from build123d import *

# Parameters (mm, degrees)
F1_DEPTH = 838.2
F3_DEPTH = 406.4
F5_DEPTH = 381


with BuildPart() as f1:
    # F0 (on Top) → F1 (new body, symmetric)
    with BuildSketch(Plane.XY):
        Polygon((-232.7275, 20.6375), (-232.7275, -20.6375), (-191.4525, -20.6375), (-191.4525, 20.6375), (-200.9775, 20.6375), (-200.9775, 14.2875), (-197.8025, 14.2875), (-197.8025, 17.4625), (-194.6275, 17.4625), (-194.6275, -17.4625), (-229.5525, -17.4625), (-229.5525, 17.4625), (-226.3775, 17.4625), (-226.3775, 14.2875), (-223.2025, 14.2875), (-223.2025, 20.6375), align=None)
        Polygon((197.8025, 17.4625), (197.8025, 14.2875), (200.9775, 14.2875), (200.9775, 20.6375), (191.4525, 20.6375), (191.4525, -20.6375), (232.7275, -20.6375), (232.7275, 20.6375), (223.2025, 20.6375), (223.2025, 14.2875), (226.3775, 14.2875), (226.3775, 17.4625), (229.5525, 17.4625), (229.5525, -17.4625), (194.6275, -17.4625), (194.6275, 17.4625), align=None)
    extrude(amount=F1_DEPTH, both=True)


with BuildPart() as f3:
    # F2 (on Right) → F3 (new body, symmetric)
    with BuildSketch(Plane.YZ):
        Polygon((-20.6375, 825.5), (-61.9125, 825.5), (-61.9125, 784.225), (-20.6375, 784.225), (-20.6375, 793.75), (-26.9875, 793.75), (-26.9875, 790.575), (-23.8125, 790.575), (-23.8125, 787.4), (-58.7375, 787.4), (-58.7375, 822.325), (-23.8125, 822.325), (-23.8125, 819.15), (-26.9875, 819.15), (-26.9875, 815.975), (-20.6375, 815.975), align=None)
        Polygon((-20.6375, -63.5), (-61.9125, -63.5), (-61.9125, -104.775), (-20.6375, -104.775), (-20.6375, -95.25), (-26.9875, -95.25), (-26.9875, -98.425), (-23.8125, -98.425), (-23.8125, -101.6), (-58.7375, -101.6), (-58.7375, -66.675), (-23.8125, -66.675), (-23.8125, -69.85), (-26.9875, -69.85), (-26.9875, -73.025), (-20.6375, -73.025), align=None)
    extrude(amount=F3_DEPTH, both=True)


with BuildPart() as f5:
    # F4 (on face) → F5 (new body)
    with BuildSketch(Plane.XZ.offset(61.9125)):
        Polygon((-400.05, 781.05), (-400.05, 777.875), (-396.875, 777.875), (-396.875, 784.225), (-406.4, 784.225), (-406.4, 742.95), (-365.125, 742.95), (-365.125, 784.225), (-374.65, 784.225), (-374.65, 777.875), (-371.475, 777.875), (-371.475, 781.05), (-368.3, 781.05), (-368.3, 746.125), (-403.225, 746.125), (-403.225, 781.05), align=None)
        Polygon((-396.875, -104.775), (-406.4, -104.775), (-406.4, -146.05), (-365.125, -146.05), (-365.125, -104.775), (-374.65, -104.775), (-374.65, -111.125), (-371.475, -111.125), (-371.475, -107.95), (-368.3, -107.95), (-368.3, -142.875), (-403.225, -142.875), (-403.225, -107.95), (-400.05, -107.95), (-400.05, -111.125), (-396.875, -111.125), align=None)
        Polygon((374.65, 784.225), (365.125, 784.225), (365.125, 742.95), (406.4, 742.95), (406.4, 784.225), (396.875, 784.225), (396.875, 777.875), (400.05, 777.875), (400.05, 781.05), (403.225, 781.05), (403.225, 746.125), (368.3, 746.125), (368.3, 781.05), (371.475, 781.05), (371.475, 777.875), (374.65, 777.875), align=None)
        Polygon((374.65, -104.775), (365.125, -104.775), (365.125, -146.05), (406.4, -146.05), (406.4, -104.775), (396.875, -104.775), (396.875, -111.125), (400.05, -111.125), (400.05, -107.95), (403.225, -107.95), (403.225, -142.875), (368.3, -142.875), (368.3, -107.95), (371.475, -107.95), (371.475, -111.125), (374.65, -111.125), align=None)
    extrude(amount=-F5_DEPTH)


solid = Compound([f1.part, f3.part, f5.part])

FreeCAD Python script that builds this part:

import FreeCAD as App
import Part
import Sketcher
Q = App.Units.Quantity


def add_polygon(sketch, points):
    """Adds a closed chain of lines whose ends are joined by coincident constraints."""
    first, n = sketch.GeometryCount, len(points)
    for a, b in zip(points, points[1:] + points[:1]):
        sketch.addGeometry(Part.LineSegment(App.Vector(*a, 0), App.Vector(*b, 0)), False)
    for i in range(n):
        sketch.addConstraint(Sketcher.Constraint("Coincident", first + i, 2, first + (i + 1) % n, 1))

doc = App.newDocument("Part")
params = doc.addObject("Spreadsheet::Sheet", "Params")
for row, (alias, value) in enumerate([
    ("sketch1_height", "0.25 in"),
    ("pad1_length", "66 in"),
    ("sketch2_width", "0.25 in"),
    ("pad2_length", "32 in"),
    ("sketch3_height", "0.25 in"),
    ("sketch3_width", "0.125 in"),
    ("sketch3_width2", "0.375 in"),
    ("pad3_length", "15 in"),
], start=1):
    params.set(f"A{row}", alias)
    params.set(f"B{row}", "=" + value)
    params.setAlias(f"B{row}", alias)

body = doc.addObject("PartDesign::Body", "Body")
body.AllowCompound = True

# Sketch on XY plane
sketch1 = body.newObject("Sketcher::SketchObject", "Sketch")
sketch1.AttachmentSupport = (doc.getObject("XY_Plane"), [""])
sketch1.MapMode = "FlatFace"
add_polygon(sketch1, [(-232.7, 20.6), (-232.7, -20.6), (-191.5, -20.6), (-191.5, 20.6), (-201, 20.6), (-201, 14.3), (-197.8, 14.3), (-197.8, 17.5), (-194.6, 17.5), (-194.6, -17.5), (-229.6, -17.5), (-229.6, 17.5), (-226.4, 17.5), (-226.4, 14.3), (-223.2, 14.3), (-223.2, 20.6)])  # lines 0-15
add_polygon(sketch1, [(197.8, 17.5), (197.8, 14.3), (201, 14.3), (201, 20.6), (191.5, 20.6), (191.5, -20.6), (232.7, -20.6), (232.7, 20.6), (223.2, 20.6), (223.2, 14.3), (226.4, 14.3), (226.4, 17.5), (229.6, 17.5), (229.6, -17.5), (194.6, -17.5), (194.6, 17.5)])  # lines 16-31
sketch1.addConstraint(Sketcher.Constraint("Vertical", 0))
sketch1.addConstraint(Sketcher.Constraint("Horizontal", 1))
sketch1.addConstraint(Sketcher.Constraint("Vertical", 2))
sketch1.addConstraint(Sketcher.Constraint("Horizontal", 3))
sketch1.addConstraint(Sketcher.Constraint("Vertical", 4))
sketch1.addConstraint(Sketcher.Constraint("Horizontal", 5))
sketch1.addConstraint(Sketcher.Constraint("Vertical", 6))
sketch1.addConstraint(Sketcher.Constraint("Horizontal", 7))
sketch1.addConstraint(Sketcher.Constraint("Vertical", 8))
sketch1.addConstraint(Sketcher.Constraint("Horizontal", 9))
sketch1.addConstraint(Sketcher.Constraint("Vertical", 10))
sketch1.addConstraint(Sketcher.Constraint("Horizontal", 11))
sketch1.addConstraint(Sketcher.Constraint("Vertical", 12))
sketch1.addConstraint(Sketcher.Constraint("Horizontal", 13))
sketch1.addConstraint(Sketcher.Constraint("Vertical", 14))
sketch1.addConstraint(Sketcher.Constraint("Horizontal", 15))
sketch1.addConstraint(Sketcher.Constraint("Vertical", 16))
sketch1.addConstraint(Sketcher.Constraint("Horizontal", 17))
sketch1.addConstraint(Sketcher.Constraint("Vertical", 18))
sketch1.addConstraint(Sketcher.Constraint("Horizontal", 19))
sketch1.addConstraint(Sketcher.Constraint("Vertical", 20))
sketch1.addConstraint(Sketcher.Constraint("Horizontal", 21))
sketch1.addConstraint(Sketcher.Constraint("Vertical", 22))
sketch1.addConstraint(Sketcher.Constraint("Horizontal", 23))
sketch1.addConstraint(Sketcher.Constraint("Vertical", 24))
sketch1.addConstraint(Sketcher.Constraint("Horizontal", 25))
sketch1.addConstraint(Sketcher.Constraint("Vertical", 26))
sketch1.addConstraint(Sketcher.Constraint("Horizontal", 27))
sketch1.addConstraint(Sketcher.Constraint("Vertical", 28))
sketch1.addConstraint(Sketcher.Constraint("Horizontal", 29))
sketch1.addConstraint(Sketcher.Constraint("Vertical", 30))
sketch1.addConstraint(Sketcher.Constraint("Horizontal", 31))
sketch1.addConstraint(Sketcher.Constraint("Symmetric", 1, 2, 19, 2, -1, 1))
sketch1.addConstraint(Sketcher.Constraint("Symmetric", 15, 2, 21, 2, -1, 1))
sketch1.addConstraint(Sketcher.Constraint("Symmetric", 9, 2, 27, 2, -1, 1))
sketch1.addConstraint(Sketcher.Constraint("Symmetric", 7, 2, 29, 2, -1, 1))
sketch1.addConstraint(Sketcher.Constraint("Symmetric", 5, 2, 16, 2, -2))
sketch1.addConstraint(Sketcher.Constraint("Symmetric", 3, 2, 18, 2, -2))
sketch1.addConstraint(Sketcher.Constraint("Symmetric", 14, 2, 23, 2, -2))
sketch1.addConstraint(Sketcher.Constraint("Symmetric", 12, 2, 25, 2, -2))
sketch1.addConstraint(Sketcher.Constraint("Horizontal", 7, 2, 10, 2))
sketch1.addConstraint(Sketcher.Constraint("Horizontal", 5, 2, 12, 2))
sketch1.addConstraint(Sketcher.Constraint("Horizontal", 3, 2, 14, 2))
sketch1.addConstraint(Sketcher.Constraint("Horizontal", 11, 2, 26, 2))
sketch1.addConstraint(Sketcher.Constraint("Horizontal", 27, 2, 30, 2))
sketch1.addConstraint(Sketcher.Constraint("Equal", 5, 7))
sketch1.addConstraint(Sketcher.Constraint("Equal", 7, 11))
sketch1.addConstraint(Sketcher.Constraint("Equal", 11, 13))
sketch1.addConstraint(Sketcher.Constraint("Equal", 3, 15))
sketch1.addConstraint(Sketcher.Constraint("Equal", 21, 0))
sketch1.addConstraint(Sketcher.Constraint("Equal", 31, 6))
sketch1.addConstraint(Sketcher.Constraint("Equal", 29, 8))
sketch1.addConstraint(Sketcher.Constraint("DistanceX", 11, 2, 3, 2, Q("1 in")))
sketch1.addConstraint(Sketcher.Constraint("DistanceY", 4, 2, 4, 1, Q("0.25 in")))
sketch1.addConstraint(Sketcher.Constraint("DistanceY", 1, 2, 6, 2, Q("1.5 in")))
sketch1.addConstraint(Sketcher.Constraint("DistanceX", 7, 2, 16, 2, Q("15.45 in")))
sketch1.setExpression("Constraints[85]", "Params.sketch1_height")
pad1 = body.newObject("PartDesign::Pad", "Pad")
pad1.Profile = sketch1
pad1.setExpression("Length", "Params.pad1_length")
pad1.Midplane = True
body2 = doc.addObject("PartDesign::Body", "Body001")
body2.AllowCompound = True

# Sketch on YZ plane
sketch2 = body2.newObject("Sketcher::SketchObject", "Sketch001")
sketch2.AttachmentSupport = (doc.getObject("YZ_Plane001"), [""])
sketch2.MapMode = "FlatFace"
add_polygon(sketch2, [(-20.6, 825.5), (-61.9, 825.5), (-61.9, 784.2), (-20.6, 784.2), (-20.6, 793.8), (-27, 793.8), (-27, 790.6), (-23.8, 790.6), (-23.8, 787.4), (-58.7, 787.4), (-58.7, 822.3), (-23.8, 822.3), (-23.8, 819.1), (-27, 819.1), (-27, 816), (-20.6, 816)])  # lines 0-15
add_polygon(sketch2, [(-20.6, -63.5), (-61.9, -63.5), (-61.9, -104.8), (-20.6, -104.8), (-20.6, -95.2), (-27, -95.2), (-27, -98.4), (-23.8, -98.4), (-23.8, -101.6), (-58.7, -101.6), (-58.7, -66.7), (-23.8, -66.7), (-23.8, -69.8), (-27, -69.8), (-27, -73), (-20.6, -73)])  # lines 16-31
sketch2.addConstraint(Sketcher.Constraint("Horizontal", 0))
sketch2.addConstraint(Sketcher.Constraint("Vertical", 1))
sketch2.addConstraint(Sketcher.Constraint("Horizontal", 2))
sketch2.addConstraint(Sketcher.Constraint("Vertical", 3))
sketch2.addConstraint(Sketcher.Constraint("Horizontal", 4))
sketch2.addConstraint(Sketcher.Constraint("Vertical", 5))
sketch2.addConstraint(Sketcher.Constraint("Horizontal", 6))
sketch2.addConstraint(Sketcher.Constraint("Vertical", 7))
sketch2.addConstraint(Sketcher.Constraint("Horizontal", 8))
sketch2.addConstraint(Sketcher.Constraint("Vertical", 9))
sketch2.addConstraint(Sketcher.Constraint("Horizontal", 10))
sketch2.addConstraint(Sketcher.Constraint("Vertical", 11))
sketch2.addConstraint(Sketcher.Constraint("Horizontal", 12))
sketch2.addConstraint(Sketcher.Constraint("Vertical", 13))
sketch2.addConstraint(Sketcher.Constraint("Horizontal", 14))
sketch2.addConstraint(Sketcher.Constraint("Vertical", 15))
sketch2.addConstraint(Sketcher.Constraint("Horizontal", 16))
sketch2.addConstraint(Sketcher.Constraint("Vertical", 17))
sketch2.addConstraint(Sketcher.Constraint("Horizontal", 18))
sketch2.addConstraint(Sketcher.Constraint("Vertical", 19))
sketch2.addConstraint(Sketcher.Constraint("Horizontal", 20))
sketch2.addConstraint(Sketcher.Constraint("Vertical", 21))
sketch2.addConstraint(Sketcher.Constraint("Horizontal", 22))
sketch2.addConstraint(Sketcher.Constraint("Vertical", 23))
sketch2.addConstraint(Sketcher.Constraint("Horizontal", 24))
sketch2.addConstraint(Sketcher.Constraint("Vertical", 25))
sketch2.addConstraint(Sketcher.Constraint("Horizontal", 26))
sketch2.addConstraint(Sketcher.Constraint("Vertical", 27))
sketch2.addConstraint(Sketcher.Constraint("Horizontal", 28))
sketch2.addConstraint(Sketcher.Constraint("Vertical", 29))
sketch2.addConstraint(Sketcher.Constraint("Horizontal", 30))
sketch2.addConstraint(Sketcher.Constraint("Vertical", 31))
sketch2.addConstraint(Sketcher.Constraint("Vertical", 7, 2, 10, 2))
sketch2.addConstraint(Sketcher.Constraint("Vertical", 5, 2, 12, 2))
sketch2.addConstraint(Sketcher.Constraint("Vertical", 3, 2, 14, 2))
sketch2.addConstraint(Sketcher.Constraint("Vertical", 1, 2, 16, 2))
sketch2.addConstraint(Sketcher.Constraint("Vertical", 15, 2, 18, 2))
sketch2.addConstraint(Sketcher.Constraint("Vertical", 13, 2, 20, 2))
sketch2.addConstraint(Sketcher.Constraint("Vertical", 11, 2, 22, 2))
sketch2.addConstraint(Sketcher.Constraint("Vertical", 9, 2, 24, 2))
sketch2.addConstraint(Sketcher.Constraint("Vertical", 23, 2, 26, 2))
sketch2.addConstraint(Sketcher.Constraint("Vertical", 21, 2, 28, 2))
sketch2.addConstraint(Sketcher.Constraint("Vertical", 19, 2, 30, 2))
sketch2.addConstraint(Sketcher.Constraint("Equal", 18, 1))
sketch2.addConstraint(Sketcher.Constraint("Equal", 28, 5))
sketch2.addConstraint(Sketcher.Constraint("Equal", 5, 7))
sketch2.addConstraint(Sketcher.Constraint("Equal", 26, 9))
sketch2.addConstraint(Sketcher.Constraint("Equal", 7, 11))
sketch2.addConstraint(Sketcher.Constraint("Equal", 11, 13))
sketch2.addConstraint(Sketcher.Constraint("Equal", 3, 15))
sketch2.addConstraint(Sketcher.Constraint("Equal", 1, 17))
sketch2.addConstraint(Sketcher.Constraint("Equal", 15, 19))
sketch2.addConstraint(Sketcher.Constraint("Equal", 13, 21))
sketch2.addConstraint(Sketcher.Constraint("Equal", 21, 23))
sketch2.addConstraint(Sketcher.Constraint("Equal", 9, 25))
sketch2.addConstraint(Sketcher.Constraint("Equal", 23, 27))
sketch2.addConstraint(Sketcher.Constraint("Equal", 27, 29))
sketch2.addConstraint(Sketcher.Constraint("DistanceY", -1, 1, 7, 2, Q("31 in")))
sketch2.addConstraint(Sketcher.Constraint("DistanceY", 23, 2, -1, 1, Q("4 in")))
sketch2.addConstraint(Sketcher.Constraint("DistanceY", 3, 2, 11, 2, Q("1 in")))
sketch2.addConstraint(Sketcher.Constraint("DistanceX", 4, 2, 4, 1, Q("0.25 in")))
sketch2.addConstraint(Sketcher.Constraint("DistanceY", -1, 1, 0, 2, Q("32.5 in")))
sketch2.addConstraint(Sketcher.Constraint("DistanceX", 1, 2, 6, 2, Q("1.5 in")))
sketch2.addConstraint(Sketcher.Constraint("DistanceX", 0, 2, -1, 1, Q("2.4375 in")))
sketch2.setExpression("Constraints[92]", "Params.sketch2_width")
pad2 = body2.newObject("PartDesign::Pad", "Pad001")
pad2.Profile = sketch2
pad2.setExpression("Length", "Params.pad2_length")
pad2.Midplane = True
body3 = doc.addObject("PartDesign::Body", "Body002")
body3.AllowCompound = True

# Sketch on XZ plane
sketch3 = body3.newObject("Sketcher::SketchObject", "Sketch002")
sketch3.AttachmentSupport = (doc.getObject("XZ_Plane002"), [""])
sketch3.MapMode = "FlatFace"
sketch3.AttachmentOffset = App.Placement(App.Vector(0, 0, 2.4375 * 25.4), App.Rotation())
add_polygon(sketch3, [(-400.1, 781), (-400.1, 777.9), (-396.9, 777.9), (-396.9, 784.2), (-406.4, 784.2), (-406.4, 743), (-365.1, 743), (-365.1, 784.2), (-374.6, 784.2), (-374.6, 777.9), (-371.5, 777.9), (-371.5, 781), (-368.3, 781), (-368.3, 746.1), (-403.2, 746.1), (-403.2, 781)])  # lines 0-15
add_polygon(sketch3, [(-396.9, -104.8), (-406.4, -104.8), (-406.4, -146.1), (-365.1, -146.1), (-365.1, -104.8), (-374.6, -104.8), (-374.6, -111.1), (-371.5, -111.1), (-371.5, -108), (-368.3, -108), (-368.3, -142.9), (-403.2, -142.9), (-403.2, -108), (-400.1, -108), (-400.1, -111.1), (-396.9, -111.1)])  # lines 16-31
add_polygon(sketch3, [(374.6, 784.2), (365.1, 784.2), (365.1, 743), (406.4, 743), (406.4, 784.2), (396.9, 784.2), (396.9, 777.9), (400.1, 777.9), (400.1, 781), (403.2, 781), (403.2, 746.1), (368.3, 746.1), (368.3, 781), (371.5, 781), (371.5, 777.9), (374.6, 777.9)])  # lines 32-47
add_polygon(sketch3, [(374.6, -104.8), (365.1, -104.8), (365.1, -146.1), (406.4, -146.1), (406.4, -104.8), (396.9, -104.8), (396.9, -111.1), (400.1, -111.1), (400.1, -108), (403.2, -108), (403.2, -142.9), (368.3, -142.9), (368.3, -108), (371.5, -108), (371.5, -111.1), (374.6, -111.1)])  # lines 48-63
sketch3.addConstraint(Sketcher.Constraint("Vertical", 0))
sketch3.addConstraint(Sketcher.Constraint("Horizontal", 1))
sketch3.addConstraint(Sketcher.Constraint("Vertical", 2))
sketch3.addConstraint(Sketcher.Constraint("Horizontal", 3))
sketch3.addConstraint(Sketcher.Constraint("Vertical", 4))
sketch3.addConstraint(Sketcher.Constraint("Horizontal", 5))
sketch3.addConstraint(Sketcher.Constraint("Vertical", 6))
sketch3.addConstraint(Sketcher.Constraint("Horizontal", 7))
sketch3.addConstraint(Sketcher.Constraint("Vertical", 8))
sketch3.addConstraint(Sketcher.Constraint("Horizontal", 9))
sketch3.addConstraint(Sketcher.Constraint("Vertical", 10))
sketch3.addConstraint(Sketcher.Constraint("Horizontal", 11))
sketch3.addConstraint(Sketcher.Constraint("Vertical", 12))
sketch3.addConstraint(Sketcher.Constraint("Horizontal", 13))
sketch3.addConstraint(Sketcher.Constraint("Vertical", 14))
sketch3.addConstraint(Sketcher.Constraint("Horizontal", 15))
sketch3.addConstraint(Sketcher.Constraint("Horizontal", 16))
sketch3.addConstraint(Sketcher.Constraint("Vertical", 17))
sketch3.addConstraint(Sketcher.Constraint("Horizontal", 18))
sketch3.addConstraint(Sketcher.Constraint("Vertical", 19))
sketch3.addConstraint(Sketcher.Constraint("Horizontal", 20))
sketch3.addConstraint(Sketcher.Constraint("Vertical", 21))
sketch3.addConstraint(Sketcher.Constraint("Horizontal", 22))
sketch3.addConstraint(Sketcher.Constraint("Vertical", 23))
sketch3.addConstraint(Sketcher.Constraint("Horizontal", 24))
sketch3.addConstraint(Sketcher.Constraint("Vertical", 25))
sketch3.addConstraint(Sketcher.Constraint("Horizontal", 26))
sketch3.addConstraint(Sketcher.Constraint("Vertical", 27))
sketch3.addConstraint(Sketcher.Constraint("Horizontal", 28))
sketch3.addConstraint(Sketcher.Constraint("Vertical", 29))
sketch3.addConstraint(Sketcher.Constraint("Horizontal", 30))
sketch3.addConstraint(Sketcher.Constraint("Vertical", 31))
sketch3.addConstraint(Sketcher.Constraint("Horizontal", 32))
sketch3.addConstraint(Sketcher.Constraint("Vertical", 33))
sketch3.addConstraint(Sketcher.Constraint("Horizontal", 34))
sketch3.addConstraint(Sketcher.Constraint("Vertical", 35))
sketch3.addConstraint(Sketcher.Constraint("Horizontal", 36))
sketch3.addConstraint(Sketcher.Constraint("Vertical", 37))
sketch3.addConstraint(Sketcher.Constraint("Horizontal", 38))
sketch3.addConstraint(Sketcher.Constraint("Vertical", 39))
sketch3.addConstraint(Sketcher.Constraint("Horizontal", 40))
sketch3.addConstraint(Sketcher.Constraint("Vertical", 41))
sketch3.addConstraint(Sketcher.Constraint("Horizontal", 42))
sketch3.addConstraint(Sketcher.Constraint("Vertical", 43))
sketch3.addConstraint(Sketcher.Constraint("Horizontal", 44))
sketch3.addConstraint(Sketcher.Constraint("Vertical", 45))
sketch3.addConstraint(Sketcher.Constraint("Horizontal", 46))
sketch3.addConstraint(Sketcher.Constraint("Vertical", 47))
sketch3.addConstraint(Sketcher.Constraint("Horizontal", 48))
sketch3.addConstraint(Sketcher.Constraint("Vertical", 49))
sketch3.addConstraint(Sketcher.Constraint("Horizontal", 50))
sketch3.addConstraint(Sketcher.Constraint("Vertical", 51))
sketch3.addConstraint(Sketcher.Constraint("Horizontal", 52))
sketch3.addConstraint(Sketcher.Constraint("Vertical", 53))
sketch3.addConstraint(Sketcher.Constraint("Horizontal", 54))
sketch3.addConstraint(Sketcher.Constraint("Vertical", 55))
sketch3.addConstraint(Sketcher.Constraint("Horizontal", 56))
sketch3.addConstraint(Sketcher.Constraint("Vertical", 57))
sketch3.addConstraint(Sketcher.Constraint("Horizontal", 58))
sketch3.addConstraint(Sketcher.Constraint("Vertical", 59))
sketch3.addConstraint(Sketcher.Constraint("Horizontal", 60))
sketch3.addConstraint(Sketcher.Constraint("Vertical", 61))
sketch3.addConstraint(Sketcher.Constraint("Horizontal", 62))
sketch3.addConstraint(Sketcher.Constraint("Vertical", 63))
sketch3.addConstraint(Sketcher.Constraint("Symmetric", 6, 2, 32, 2, -2))
sketch3.addConstraint(Sketcher.Constraint("Symmetric", 4, 2, 34, 2, -2))
sketch3.addConstraint(Sketcher.Constraint("Symmetric", 2, 2, 36, 2, -2))
sketch3.addConstraint(Sketcher.Constraint("Symmetric", 0, 2, 38, 2, -2))
sketch3.addConstraint(Sketcher.Constraint("Symmetric", 14, 2, 40, 2, -2))
sketch3.addConstraint(Sketcher.Constraint("Symmetric", 12, 2, 42, 2, -2))
sketch3.addConstraint(Sketcher.Constraint("Symmetric", 10, 2, 44, 2, -2))
sketch3.addConstraint(Sketcher.Constraint("Symmetric", 8, 2, 46, 2, -2))
sketch3.addConstraint(Sketcher.Constraint("Symmetric", 19, 2, 48, 2, -2))
sketch3.addConstraint(Sketcher.Constraint("Symmetric", 17, 2, 50, 2, -2))
sketch3.addConstraint(Sketcher.Constraint("Symmetric", 31, 2, 52, 2, -2))
sketch3.addConstraint(Sketcher.Constraint("Symmetric", 29, 2, 54, 2, -2))
sketch3.addConstraint(Sketcher.Constraint("Symmetric", 27, 2, 56, 2, -2))
sketch3.addConstraint(Sketcher.Constraint("Symmetric", 25, 2, 58, 2, -2))
sketch3.addConstraint(Sketcher.Constraint("Symmetric", 23, 2, 60, 2, -2))
sketch3.addConstraint(Sketcher.Constraint("Symmetric", 21, 2, 62, 2, -2))
sketch3.addConstraint(Sketcher.Constraint("Horizontal", 3, 2, 6, 2))
sketch3.addConstraint(Sketcher.Constraint("Horizontal", 1, 2, 8, 2))
sketch3.addConstraint(Sketcher.Constraint("Horizontal", 11, 2, 14, 2))
sketch3.addConstraint(Sketcher.Constraint("Horizontal", 16, 2, 19, 2))
sketch3.addConstraint(Sketcher.Constraint("Horizontal", 24, 2, 27, 2))
sketch3.addConstraint(Sketcher.Constraint("Horizontal", 22, 2, 29, 2))
sketch3.addConstraint(Sketcher.Constraint("Vertical", 4, 2, 16, 2))
sketch3.addConstraint(Sketcher.Constraint("Vertical", 6, 2, 18, 2))
sketch3.addConstraint(Sketcher.Constraint("Vertical", 8, 2, 20, 2))
sketch3.addConstraint(Sketcher.Constraint("Vertical", 10, 2, 22, 2))
sketch3.addConstraint(Sketcher.Constraint("Vertical", 12, 2, 24, 2))
sketch3.addConstraint(Sketcher.Constraint("Vertical", 14, 2, 26, 2))
sketch3.addConstraint(Sketcher.Constraint("Vertical", 15, 2, 28, 2))
sketch3.addConstraint(Sketcher.Constraint("Vertical", 2, 2, 30, 2))
sketch3.addConstraint(Sketcher.Constraint("Equal", 3, 7))
sketch3.addConstraint(Sketcher.Constraint("Equal", 1, 9))
sketch3.addConstraint(Sketcher.Constraint("Equal", 9, 11))
sketch3.addConstraint(Sketcher.Constraint("Equal", 11, 15))
sketch3.addConstraint(Sketcher.Constraint("Equal", 62, 0))
sketch3.addConstraint(Sketcher.Constraint("Equal", 50, 4))
sketch3.addConstraint(Sketcher.Constraint("Equal", 58, 12))
sketch3.addConstraint(Sketcher.Constraint("Equal", 6, 17))
sketch3.addConstraint(Sketcher.Constraint("Equal", 8, 21))
sketch3.addConstraint(Sketcher.Constraint("Equal", 10, 23))
sketch3.addConstraint(Sketcher.Constraint("Equal", 14, 25))
sketch3.addConstraint(Sketcher.Constraint("DistanceX", 3, 2, -1, 1, Q("16 in")))
sketch3.addConstraint(Sketcher.Constraint("DistanceY", 2, 1, 2, 2, Q("0.25 in")))
sketch3.addConstraint(Sketcher.Constraint("DistanceX", 11, 2, -1, 1, Q("14.5 in")))
sketch3.addConstraint(Sketcher.Constraint("DistanceX", 1, 1, 1, 2, Q("0.125 in")))
sketch3.addConstraint(Sketcher.Constraint("DistanceX", 3, 2, 3, 1, Q("0.375 in")))
sketch3.addConstraint(Sketcher.Constraint("DistanceY", -1, 1, 4, 2, Q("29.25 in")))
sketch3.addConstraint(Sketcher.Constraint("DistanceY", 17, 2, -1, 1, Q("5.75 in")))
sketch3.setExpression("Constraints[170]", "Params.sketch3_height")
sketch3.setExpression("Constraints[172]", "Params.sketch3_width")
sketch3.setExpression("Constraints[173]", "Params.sketch3_width2")
pad3 = body3.newObject("PartDesign::Pad", "Pad002")
pad3.Profile = sketch3
pad3.setExpression("Length", "Params.pad3_length")
pad3.Reversed = True

doc.recompute()
